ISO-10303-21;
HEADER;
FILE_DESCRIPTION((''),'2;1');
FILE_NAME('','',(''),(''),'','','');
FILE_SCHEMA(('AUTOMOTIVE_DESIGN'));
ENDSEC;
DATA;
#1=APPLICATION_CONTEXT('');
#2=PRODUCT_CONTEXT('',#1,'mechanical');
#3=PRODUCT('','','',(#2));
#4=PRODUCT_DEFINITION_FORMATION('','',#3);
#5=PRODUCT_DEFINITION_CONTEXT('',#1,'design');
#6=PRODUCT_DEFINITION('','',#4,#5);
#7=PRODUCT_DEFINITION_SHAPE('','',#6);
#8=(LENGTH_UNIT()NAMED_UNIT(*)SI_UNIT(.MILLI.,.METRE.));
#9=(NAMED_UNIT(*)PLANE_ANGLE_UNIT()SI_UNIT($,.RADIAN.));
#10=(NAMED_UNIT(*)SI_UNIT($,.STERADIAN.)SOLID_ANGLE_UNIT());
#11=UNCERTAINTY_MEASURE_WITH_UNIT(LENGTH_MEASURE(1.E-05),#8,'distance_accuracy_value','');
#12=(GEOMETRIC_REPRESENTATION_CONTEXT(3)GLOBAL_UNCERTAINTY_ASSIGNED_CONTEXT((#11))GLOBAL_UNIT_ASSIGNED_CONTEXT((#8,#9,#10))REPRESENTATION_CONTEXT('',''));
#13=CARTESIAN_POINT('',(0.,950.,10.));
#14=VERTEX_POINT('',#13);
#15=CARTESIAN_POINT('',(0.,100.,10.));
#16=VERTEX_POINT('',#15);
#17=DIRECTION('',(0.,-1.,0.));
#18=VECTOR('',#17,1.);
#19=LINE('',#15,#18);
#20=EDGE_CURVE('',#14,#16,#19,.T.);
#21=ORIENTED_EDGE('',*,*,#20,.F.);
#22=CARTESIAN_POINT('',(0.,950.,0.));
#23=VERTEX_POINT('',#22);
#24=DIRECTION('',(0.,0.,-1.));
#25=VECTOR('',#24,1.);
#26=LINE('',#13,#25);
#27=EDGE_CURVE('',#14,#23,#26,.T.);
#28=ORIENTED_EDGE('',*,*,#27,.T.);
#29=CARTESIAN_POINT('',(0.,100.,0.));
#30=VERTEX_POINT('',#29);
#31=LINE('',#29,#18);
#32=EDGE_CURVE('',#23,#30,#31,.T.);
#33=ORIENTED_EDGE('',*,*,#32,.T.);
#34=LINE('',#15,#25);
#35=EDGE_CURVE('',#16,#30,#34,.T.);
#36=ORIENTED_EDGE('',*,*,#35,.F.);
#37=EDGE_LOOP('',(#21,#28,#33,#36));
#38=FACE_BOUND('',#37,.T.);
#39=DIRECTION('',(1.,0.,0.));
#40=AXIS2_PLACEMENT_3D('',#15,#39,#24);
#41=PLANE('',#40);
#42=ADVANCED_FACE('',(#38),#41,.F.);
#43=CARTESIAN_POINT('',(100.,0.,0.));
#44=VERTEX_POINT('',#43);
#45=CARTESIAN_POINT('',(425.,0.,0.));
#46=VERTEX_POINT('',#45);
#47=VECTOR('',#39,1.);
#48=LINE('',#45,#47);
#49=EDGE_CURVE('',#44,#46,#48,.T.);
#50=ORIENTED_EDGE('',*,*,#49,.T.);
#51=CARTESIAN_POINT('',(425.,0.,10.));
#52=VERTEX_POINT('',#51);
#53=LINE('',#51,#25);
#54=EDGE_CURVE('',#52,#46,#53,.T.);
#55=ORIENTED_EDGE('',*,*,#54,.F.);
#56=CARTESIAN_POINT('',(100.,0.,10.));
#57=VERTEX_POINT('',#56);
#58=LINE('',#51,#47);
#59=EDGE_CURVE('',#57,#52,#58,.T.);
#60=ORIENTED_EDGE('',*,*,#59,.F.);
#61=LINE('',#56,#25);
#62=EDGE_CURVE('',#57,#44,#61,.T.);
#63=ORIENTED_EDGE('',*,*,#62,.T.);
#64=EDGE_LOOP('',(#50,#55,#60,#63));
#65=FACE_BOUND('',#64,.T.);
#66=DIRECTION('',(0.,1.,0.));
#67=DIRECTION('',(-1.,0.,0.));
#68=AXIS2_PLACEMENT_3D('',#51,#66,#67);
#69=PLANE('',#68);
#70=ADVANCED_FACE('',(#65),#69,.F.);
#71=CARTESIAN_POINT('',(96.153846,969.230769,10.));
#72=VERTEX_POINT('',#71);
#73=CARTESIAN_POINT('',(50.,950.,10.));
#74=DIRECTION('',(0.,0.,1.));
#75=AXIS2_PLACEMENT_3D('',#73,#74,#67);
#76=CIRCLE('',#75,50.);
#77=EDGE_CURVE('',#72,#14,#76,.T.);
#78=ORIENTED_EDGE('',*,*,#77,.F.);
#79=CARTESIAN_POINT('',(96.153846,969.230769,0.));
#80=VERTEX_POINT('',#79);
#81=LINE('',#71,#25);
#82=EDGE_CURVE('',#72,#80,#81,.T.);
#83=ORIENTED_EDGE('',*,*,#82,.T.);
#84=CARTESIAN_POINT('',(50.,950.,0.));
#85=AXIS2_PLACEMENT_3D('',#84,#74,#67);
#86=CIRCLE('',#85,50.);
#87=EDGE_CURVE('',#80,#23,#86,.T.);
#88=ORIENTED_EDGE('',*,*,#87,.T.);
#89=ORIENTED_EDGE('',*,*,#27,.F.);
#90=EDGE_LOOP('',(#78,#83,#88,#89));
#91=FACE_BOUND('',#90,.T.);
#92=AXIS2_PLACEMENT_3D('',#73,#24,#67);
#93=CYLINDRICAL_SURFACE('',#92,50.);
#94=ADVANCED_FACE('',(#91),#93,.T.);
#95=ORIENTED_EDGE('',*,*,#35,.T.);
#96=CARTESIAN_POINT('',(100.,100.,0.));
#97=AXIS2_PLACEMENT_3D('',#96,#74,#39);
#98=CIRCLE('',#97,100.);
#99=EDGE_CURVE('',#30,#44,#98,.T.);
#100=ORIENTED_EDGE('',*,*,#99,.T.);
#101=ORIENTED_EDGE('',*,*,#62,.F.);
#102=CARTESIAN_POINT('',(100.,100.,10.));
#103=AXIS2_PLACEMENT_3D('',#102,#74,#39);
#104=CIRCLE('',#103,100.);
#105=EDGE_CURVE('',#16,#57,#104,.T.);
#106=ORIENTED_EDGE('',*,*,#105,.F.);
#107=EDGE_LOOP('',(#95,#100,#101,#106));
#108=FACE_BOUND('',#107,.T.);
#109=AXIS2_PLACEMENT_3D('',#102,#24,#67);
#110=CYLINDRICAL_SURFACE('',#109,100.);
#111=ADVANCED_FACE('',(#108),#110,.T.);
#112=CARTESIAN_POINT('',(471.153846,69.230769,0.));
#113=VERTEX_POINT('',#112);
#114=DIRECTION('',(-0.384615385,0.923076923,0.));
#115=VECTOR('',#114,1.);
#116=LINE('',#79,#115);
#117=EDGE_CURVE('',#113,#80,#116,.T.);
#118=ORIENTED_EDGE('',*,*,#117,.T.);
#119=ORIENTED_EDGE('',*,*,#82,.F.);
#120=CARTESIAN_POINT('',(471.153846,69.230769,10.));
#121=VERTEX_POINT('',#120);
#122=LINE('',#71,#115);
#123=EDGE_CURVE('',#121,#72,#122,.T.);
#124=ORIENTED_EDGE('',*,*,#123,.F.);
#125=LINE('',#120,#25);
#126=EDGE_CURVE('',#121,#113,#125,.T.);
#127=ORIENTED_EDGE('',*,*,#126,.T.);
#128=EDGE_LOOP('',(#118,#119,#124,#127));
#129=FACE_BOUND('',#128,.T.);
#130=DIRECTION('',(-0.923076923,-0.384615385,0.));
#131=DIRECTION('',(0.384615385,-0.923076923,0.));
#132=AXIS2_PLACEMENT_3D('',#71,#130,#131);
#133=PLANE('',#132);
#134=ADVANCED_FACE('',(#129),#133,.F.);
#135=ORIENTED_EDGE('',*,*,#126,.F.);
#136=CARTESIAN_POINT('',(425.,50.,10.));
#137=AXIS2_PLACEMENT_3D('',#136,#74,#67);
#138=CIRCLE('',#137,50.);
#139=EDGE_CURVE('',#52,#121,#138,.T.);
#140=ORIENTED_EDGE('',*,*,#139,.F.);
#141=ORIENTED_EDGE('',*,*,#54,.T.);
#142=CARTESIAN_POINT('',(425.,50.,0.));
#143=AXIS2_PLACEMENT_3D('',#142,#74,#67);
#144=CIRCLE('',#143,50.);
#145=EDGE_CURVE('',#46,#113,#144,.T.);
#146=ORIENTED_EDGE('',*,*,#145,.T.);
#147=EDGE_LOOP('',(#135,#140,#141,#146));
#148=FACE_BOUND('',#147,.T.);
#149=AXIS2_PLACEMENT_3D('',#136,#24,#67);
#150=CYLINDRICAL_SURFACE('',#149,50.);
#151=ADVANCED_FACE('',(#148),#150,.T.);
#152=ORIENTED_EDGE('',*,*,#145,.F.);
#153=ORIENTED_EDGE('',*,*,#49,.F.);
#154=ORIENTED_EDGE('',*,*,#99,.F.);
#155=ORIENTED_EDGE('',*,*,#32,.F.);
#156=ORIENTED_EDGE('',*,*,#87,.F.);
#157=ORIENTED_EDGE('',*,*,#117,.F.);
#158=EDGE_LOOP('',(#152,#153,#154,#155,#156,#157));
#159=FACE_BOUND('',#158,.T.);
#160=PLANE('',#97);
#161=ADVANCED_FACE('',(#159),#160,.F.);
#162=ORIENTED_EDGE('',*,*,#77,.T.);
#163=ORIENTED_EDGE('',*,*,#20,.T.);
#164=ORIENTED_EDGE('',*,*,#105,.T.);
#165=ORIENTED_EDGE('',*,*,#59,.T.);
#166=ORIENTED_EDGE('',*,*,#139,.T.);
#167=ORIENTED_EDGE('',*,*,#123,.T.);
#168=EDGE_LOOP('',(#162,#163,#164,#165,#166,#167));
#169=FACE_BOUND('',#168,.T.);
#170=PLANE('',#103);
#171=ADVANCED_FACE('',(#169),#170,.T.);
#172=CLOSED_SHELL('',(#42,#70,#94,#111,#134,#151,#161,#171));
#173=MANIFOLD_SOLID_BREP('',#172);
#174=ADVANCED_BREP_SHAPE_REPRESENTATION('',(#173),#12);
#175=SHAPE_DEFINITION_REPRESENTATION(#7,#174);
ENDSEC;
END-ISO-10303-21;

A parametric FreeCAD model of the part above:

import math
import FreeCAD as App
import Part
import Sketcher

doc = App.newDocument("Part")
body = doc.addObject("PartDesign::Body", "Body")

# Sketch on XY plane
sketch1 = body.newObject("Sketcher::SketchObject", "Sketch")
sketch1.AttachmentSupport = (doc.getObject("XY_Plane"), [""])
sketch1.MapMode = "FlatFace"
sketch1.addGeometry(Part.LineSegment(App.Vector(0, 950, 0), App.Vector(0, 100, 0)), False)
sketch1.addGeometry(Part.ArcOfCircle(Part.Circle(App.Vector(100, 100, 0), App.Vector(0, 0, 1), 100), math.radians(180), math.radians(270)), False)
sketch1.addGeometry(Part.LineSegment(App.Vector(100, 0, 0), App.Vector(425, 0, 0)), False)
sketch1.addGeometry(Part.ArcOfCircle(Part.Circle(App.Vector(425, 50, 0), App.Vector(0, 0, 1), 50), math.radians(-90), math.radians(23)), False)
sketch1.addGeometry(Part.LineSegment(App.Vector(471, 69, 0), App.Vector(96, 969, 0)), False)
sketch1.addGeometry(Part.ArcOfCircle(Part.Circle(App.Vector(50, 950, 0), App.Vector(0, 0, 1), 50), math.radians(23), math.radians(180)), False)
sketch1.addConstraint(Sketcher.Constraint("Tangent", 0, 2, 1, 1))
sketch1.addConstraint(Sketcher.Constraint("Tangent", 1, 2, 2, 1))
sketch1.addConstraint(Sketcher.Constraint("Tangent", 2, 2, 3, 1))
sketch1.addConstraint(Sketcher.Constraint("Tangent", 3, 2, 4, 1))
sketch1.addConstraint(Sketcher.Constraint("Tangent", 4, 2, 5, 1))
sketch1.addConstraint(Sketcher.Constraint("Tangent", 5, 2, 0, 1))
sketch1.addConstraint(Sketcher.Constraint("Vertical", 0))
sketch1.addConstraint(Sketcher.Constraint("Horizontal", 2))
sketch1.addConstraint(Sketcher.Constraint("Equal", 3, 5))
sketch1.addConstraint(Sketcher.Constraint("PointOnObject", 0, 2, -2))
sketch1.addConstraint(Sketcher.Constraint("PointOnObject", 1, 2, -1))
sketch1.addConstraint(Sketcher.Constraint("Radius", 1, 100.0))
sketch1.addConstraint(Sketcher.Constraint("Radius", 3, 50.0))
sketch1.addConstraint(Sketcher.Constraint("DistanceX", 2, 1, 2, 2, 325.0))
sketch1.addConstraint(Sketcher.Constraint("DistanceY", 0, 2, 0, 1, 850.0))
pad1 = body.newObject("PartDesign::Pad", "Pad")
pad1.Profile = sketch1
pad1.Length = 10

doc.recompute()
